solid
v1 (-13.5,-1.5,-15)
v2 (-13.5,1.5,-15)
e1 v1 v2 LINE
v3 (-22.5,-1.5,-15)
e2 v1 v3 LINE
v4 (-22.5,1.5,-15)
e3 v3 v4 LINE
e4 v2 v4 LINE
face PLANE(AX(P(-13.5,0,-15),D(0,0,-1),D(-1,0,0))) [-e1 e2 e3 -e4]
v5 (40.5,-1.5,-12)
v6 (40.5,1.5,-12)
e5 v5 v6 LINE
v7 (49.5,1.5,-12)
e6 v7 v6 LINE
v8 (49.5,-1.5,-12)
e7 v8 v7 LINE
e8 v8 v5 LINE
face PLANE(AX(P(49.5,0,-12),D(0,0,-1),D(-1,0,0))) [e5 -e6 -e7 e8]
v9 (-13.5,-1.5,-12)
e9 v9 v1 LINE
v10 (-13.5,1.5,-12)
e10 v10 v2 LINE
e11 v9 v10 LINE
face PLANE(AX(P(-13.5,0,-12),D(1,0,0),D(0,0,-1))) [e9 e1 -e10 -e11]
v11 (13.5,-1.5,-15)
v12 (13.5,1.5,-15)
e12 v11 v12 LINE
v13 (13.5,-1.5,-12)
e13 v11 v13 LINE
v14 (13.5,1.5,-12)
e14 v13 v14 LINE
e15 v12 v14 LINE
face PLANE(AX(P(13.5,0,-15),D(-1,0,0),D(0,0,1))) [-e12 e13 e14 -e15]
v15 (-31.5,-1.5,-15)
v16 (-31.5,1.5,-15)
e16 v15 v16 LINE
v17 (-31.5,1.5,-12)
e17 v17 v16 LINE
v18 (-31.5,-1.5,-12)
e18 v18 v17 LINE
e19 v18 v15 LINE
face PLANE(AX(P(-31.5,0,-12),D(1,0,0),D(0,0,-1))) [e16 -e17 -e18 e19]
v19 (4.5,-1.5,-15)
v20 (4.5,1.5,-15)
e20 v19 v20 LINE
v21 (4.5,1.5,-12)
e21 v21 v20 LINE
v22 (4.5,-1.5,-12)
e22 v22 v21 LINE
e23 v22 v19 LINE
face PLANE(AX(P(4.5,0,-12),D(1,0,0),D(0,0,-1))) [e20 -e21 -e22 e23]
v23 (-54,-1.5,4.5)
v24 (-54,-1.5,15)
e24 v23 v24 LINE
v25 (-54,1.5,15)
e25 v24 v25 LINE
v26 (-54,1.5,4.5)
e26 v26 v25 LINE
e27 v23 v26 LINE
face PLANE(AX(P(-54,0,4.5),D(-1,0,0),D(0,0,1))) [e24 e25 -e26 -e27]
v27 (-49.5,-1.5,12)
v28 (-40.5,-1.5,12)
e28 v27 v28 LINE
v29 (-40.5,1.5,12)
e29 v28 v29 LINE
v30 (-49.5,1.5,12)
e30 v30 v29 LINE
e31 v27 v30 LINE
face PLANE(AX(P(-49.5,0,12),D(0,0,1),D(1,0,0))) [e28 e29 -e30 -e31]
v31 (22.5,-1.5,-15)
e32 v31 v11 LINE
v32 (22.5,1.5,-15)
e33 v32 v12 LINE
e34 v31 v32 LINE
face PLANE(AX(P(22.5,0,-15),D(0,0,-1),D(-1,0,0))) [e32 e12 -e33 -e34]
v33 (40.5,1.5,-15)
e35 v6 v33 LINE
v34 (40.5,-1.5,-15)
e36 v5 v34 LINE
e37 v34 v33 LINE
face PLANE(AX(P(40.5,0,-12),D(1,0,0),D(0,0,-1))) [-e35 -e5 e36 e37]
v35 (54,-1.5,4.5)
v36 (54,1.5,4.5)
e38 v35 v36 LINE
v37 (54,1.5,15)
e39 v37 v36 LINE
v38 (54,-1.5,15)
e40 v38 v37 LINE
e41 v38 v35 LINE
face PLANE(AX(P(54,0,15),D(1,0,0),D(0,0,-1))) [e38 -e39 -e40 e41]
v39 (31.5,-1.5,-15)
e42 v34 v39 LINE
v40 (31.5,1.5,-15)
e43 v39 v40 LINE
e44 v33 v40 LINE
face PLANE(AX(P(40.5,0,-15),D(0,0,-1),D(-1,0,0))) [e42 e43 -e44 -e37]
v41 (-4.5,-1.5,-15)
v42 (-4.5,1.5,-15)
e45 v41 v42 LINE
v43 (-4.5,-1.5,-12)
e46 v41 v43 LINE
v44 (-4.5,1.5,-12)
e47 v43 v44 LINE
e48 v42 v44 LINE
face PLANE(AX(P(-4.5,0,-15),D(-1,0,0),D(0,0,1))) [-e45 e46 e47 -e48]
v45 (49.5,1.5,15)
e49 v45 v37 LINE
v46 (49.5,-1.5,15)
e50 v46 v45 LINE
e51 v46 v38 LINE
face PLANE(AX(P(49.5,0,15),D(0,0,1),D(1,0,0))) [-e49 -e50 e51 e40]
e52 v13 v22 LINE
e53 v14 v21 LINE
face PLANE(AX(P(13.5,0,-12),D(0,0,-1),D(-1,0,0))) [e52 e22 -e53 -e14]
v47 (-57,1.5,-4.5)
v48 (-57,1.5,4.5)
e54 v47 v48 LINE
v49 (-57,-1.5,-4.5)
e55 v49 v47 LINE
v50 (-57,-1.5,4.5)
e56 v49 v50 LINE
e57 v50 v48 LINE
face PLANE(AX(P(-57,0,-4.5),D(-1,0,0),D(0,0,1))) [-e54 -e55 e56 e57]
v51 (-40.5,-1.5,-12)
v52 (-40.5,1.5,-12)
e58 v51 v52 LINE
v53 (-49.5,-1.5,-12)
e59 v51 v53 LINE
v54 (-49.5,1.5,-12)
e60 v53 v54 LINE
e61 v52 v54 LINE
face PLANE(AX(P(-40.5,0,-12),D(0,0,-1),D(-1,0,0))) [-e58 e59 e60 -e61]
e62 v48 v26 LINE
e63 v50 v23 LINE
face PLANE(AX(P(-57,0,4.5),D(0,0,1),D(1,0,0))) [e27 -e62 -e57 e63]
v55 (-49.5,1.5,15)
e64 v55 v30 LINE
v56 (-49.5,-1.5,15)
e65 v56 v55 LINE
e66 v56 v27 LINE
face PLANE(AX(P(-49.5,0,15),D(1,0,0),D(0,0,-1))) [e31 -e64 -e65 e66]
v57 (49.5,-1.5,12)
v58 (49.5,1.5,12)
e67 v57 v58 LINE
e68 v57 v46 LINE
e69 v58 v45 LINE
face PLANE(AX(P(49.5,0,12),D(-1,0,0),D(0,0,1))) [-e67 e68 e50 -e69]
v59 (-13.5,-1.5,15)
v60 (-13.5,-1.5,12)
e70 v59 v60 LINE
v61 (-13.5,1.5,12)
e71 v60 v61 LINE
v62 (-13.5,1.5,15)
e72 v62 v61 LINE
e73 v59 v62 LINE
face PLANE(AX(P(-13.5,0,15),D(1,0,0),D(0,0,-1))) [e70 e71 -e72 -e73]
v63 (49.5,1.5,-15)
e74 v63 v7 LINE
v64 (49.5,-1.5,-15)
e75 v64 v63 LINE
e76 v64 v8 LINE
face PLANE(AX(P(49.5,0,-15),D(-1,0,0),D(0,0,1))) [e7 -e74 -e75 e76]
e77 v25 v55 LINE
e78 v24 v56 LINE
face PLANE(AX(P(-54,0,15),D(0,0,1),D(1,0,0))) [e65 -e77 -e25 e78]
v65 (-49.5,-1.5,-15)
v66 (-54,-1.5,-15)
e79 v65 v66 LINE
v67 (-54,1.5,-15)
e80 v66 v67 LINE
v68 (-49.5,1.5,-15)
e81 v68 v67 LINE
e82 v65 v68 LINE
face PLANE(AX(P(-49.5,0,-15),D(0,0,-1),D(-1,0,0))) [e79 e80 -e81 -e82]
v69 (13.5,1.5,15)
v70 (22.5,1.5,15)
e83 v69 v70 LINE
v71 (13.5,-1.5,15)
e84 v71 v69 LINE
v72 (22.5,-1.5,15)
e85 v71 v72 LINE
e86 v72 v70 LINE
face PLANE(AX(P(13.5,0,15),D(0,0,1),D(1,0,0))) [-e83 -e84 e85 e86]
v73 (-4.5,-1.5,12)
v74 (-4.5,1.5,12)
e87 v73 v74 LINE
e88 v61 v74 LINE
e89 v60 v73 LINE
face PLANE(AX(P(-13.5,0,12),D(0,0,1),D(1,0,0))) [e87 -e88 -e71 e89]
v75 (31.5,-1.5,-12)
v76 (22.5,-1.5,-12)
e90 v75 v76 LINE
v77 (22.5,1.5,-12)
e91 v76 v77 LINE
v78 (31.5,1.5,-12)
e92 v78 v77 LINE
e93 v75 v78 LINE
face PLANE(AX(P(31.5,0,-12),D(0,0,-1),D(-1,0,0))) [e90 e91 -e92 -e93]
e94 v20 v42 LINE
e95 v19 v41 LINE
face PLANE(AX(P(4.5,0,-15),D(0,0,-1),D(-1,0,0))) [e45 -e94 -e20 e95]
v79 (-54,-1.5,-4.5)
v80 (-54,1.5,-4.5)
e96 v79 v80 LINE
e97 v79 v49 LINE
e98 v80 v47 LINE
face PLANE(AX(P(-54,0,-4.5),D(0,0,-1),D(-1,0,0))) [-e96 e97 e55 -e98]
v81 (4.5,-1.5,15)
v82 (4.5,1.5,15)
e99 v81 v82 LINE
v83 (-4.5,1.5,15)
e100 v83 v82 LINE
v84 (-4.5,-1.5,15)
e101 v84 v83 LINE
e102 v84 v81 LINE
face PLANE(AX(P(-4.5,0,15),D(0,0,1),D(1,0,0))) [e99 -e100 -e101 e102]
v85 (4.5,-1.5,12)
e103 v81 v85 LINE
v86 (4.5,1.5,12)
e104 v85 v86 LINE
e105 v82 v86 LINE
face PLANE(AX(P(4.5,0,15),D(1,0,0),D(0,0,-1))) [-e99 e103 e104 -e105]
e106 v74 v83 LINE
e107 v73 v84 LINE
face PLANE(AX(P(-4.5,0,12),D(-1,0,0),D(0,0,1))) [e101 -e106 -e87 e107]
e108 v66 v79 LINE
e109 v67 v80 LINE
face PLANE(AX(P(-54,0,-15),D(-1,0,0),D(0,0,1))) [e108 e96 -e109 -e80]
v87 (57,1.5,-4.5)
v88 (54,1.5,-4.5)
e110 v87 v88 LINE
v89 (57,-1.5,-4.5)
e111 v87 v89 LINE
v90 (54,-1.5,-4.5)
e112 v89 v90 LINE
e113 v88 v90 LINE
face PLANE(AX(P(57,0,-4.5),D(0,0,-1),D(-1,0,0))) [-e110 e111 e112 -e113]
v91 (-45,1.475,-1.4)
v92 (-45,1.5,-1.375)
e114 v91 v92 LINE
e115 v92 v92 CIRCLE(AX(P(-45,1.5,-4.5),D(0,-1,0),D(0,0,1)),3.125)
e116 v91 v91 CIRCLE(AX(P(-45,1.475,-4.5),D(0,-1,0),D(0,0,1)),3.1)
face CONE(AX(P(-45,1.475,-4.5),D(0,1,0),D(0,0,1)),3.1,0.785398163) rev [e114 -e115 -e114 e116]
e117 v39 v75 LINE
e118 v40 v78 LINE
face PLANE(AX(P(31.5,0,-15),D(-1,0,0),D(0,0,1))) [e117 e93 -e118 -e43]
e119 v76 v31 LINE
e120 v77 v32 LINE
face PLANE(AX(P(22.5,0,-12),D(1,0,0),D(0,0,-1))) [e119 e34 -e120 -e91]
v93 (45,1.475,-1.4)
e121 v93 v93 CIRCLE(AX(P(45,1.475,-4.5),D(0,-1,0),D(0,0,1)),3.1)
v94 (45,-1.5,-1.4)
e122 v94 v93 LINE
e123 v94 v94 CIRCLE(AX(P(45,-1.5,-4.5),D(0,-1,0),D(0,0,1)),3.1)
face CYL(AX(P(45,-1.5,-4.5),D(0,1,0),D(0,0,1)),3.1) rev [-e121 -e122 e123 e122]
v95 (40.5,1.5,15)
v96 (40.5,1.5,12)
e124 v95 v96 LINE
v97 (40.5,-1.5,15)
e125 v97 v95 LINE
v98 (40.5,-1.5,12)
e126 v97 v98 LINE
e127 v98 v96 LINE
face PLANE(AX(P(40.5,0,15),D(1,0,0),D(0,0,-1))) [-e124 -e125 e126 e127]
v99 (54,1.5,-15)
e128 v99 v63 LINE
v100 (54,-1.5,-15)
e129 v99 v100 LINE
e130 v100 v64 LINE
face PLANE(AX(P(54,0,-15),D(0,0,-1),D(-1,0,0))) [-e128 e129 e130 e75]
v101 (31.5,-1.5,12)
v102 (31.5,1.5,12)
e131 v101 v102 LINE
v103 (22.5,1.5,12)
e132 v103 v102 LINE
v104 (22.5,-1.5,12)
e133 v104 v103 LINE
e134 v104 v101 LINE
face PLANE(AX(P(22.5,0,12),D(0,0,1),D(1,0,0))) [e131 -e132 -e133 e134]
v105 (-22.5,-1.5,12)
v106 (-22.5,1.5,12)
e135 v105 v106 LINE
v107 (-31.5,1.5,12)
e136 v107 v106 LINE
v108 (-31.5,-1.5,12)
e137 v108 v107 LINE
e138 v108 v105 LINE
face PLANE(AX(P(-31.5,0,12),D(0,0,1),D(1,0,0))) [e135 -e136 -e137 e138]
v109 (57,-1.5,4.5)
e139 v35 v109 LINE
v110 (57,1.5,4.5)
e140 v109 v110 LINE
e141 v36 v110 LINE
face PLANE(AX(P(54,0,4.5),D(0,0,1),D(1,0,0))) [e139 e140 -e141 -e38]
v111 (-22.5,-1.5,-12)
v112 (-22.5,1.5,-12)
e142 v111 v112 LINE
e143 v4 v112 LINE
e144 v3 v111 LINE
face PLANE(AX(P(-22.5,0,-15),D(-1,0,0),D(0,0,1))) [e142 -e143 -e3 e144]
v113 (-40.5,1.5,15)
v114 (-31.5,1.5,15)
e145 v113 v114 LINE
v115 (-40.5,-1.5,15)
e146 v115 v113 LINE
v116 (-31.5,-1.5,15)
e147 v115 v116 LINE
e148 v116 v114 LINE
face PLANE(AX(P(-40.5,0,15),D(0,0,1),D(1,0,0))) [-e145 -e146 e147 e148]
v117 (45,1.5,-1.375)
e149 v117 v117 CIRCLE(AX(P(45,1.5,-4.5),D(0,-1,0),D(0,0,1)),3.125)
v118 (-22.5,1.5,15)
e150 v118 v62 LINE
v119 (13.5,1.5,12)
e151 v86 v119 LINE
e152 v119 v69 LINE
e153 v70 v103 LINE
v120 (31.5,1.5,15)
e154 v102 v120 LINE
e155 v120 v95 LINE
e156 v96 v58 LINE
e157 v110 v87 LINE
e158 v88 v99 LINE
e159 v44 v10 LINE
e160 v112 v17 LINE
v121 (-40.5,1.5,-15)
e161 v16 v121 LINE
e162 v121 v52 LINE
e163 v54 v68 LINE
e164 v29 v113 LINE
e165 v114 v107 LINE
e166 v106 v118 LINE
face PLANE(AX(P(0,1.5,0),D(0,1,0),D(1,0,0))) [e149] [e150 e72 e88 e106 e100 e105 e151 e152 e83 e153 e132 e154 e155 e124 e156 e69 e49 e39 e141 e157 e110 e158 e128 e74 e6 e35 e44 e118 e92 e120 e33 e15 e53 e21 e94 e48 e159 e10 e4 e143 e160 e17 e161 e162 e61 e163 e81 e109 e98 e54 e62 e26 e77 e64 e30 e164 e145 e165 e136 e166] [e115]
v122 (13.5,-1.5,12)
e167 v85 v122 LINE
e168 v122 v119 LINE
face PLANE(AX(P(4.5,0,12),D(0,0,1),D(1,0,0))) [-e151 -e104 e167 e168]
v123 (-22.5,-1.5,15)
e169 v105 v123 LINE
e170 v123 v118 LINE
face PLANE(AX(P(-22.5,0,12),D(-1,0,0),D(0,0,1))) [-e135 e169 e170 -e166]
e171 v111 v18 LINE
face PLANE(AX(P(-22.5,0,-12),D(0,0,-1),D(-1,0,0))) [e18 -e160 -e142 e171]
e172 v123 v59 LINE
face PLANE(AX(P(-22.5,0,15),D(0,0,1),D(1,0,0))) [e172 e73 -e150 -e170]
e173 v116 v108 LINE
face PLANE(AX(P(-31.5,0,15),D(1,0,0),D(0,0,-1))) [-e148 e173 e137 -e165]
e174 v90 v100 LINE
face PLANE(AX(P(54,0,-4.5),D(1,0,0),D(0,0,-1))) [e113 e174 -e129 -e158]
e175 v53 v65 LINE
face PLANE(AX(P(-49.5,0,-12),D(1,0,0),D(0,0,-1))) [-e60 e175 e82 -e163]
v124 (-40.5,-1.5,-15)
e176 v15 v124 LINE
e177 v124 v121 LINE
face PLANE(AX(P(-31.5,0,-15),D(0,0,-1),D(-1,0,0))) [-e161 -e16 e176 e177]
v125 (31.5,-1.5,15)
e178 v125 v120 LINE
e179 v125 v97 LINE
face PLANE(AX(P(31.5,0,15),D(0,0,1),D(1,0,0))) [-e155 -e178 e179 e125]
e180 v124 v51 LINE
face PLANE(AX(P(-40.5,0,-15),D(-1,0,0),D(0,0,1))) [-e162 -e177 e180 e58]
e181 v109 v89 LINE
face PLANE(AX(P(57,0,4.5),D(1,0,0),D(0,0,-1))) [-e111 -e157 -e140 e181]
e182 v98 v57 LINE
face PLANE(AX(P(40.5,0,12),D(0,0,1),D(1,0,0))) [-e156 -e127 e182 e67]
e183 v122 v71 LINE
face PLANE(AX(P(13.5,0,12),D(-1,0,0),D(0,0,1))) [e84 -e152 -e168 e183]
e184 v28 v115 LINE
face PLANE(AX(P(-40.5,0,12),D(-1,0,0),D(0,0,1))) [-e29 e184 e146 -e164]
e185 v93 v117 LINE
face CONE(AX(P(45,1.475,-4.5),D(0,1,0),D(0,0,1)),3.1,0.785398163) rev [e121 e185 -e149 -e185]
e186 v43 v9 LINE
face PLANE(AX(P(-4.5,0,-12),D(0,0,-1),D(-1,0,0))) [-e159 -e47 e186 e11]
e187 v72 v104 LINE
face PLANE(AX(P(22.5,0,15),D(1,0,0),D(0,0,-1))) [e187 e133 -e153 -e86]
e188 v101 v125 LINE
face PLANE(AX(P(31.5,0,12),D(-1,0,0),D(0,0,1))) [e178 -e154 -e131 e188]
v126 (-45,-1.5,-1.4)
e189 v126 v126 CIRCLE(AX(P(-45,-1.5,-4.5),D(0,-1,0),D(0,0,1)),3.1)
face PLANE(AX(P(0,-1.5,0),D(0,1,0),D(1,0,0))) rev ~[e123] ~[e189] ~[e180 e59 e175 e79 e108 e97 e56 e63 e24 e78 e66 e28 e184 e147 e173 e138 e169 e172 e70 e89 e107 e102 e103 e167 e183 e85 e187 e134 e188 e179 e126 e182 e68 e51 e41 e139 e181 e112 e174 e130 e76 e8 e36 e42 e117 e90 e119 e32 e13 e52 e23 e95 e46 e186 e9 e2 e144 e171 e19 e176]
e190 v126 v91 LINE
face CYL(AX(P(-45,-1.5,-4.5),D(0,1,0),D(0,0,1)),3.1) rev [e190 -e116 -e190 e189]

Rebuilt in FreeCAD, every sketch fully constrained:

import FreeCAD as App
import Part
import Sketcher

V = App.Vector
Q = App.Units.Quantity


def add_polygon(sketch, points):
    """Adds a closed chain of lines whose ends are joined by coincident constraints."""
    first, n = sketch.GeometryCount, len(points)
    for a, b in zip(points, points[1:] + points[:1]):
        sketch.addGeometry(Part.LineSegment(App.Vector(*a, 0), App.Vector(*b, 0)), False)
    for i in range(n):
        sketch.addConstraint(Sketcher.Constraint("Coincident", first + i, 2, first + (i + 1) % n, 1))

doc = App.newDocument("Part")
body = doc.addObject("PartDesign::Body", "Body")

# Sketch on XZ plane
sketch1 = body.newObject("Sketcher::SketchObject", "Sketch")
sketch1.AttachmentSupport = (doc.getObject("XZ_Plane"), [""])
sketch1.MapMode = "FlatFace"
add_polygon(sketch1, [(54, -15), (49.5, -15), (49.5, -12), (40.5, -12), (40.5, -15), (31.5, -15), (31.5, -12), (22.5, -12), (22.5, -15), (13.5, -15), (13.5, -12), (4.5, -12), (4.5, -15), (-4.5, -15), (-4.5, -12), (-13.5, -12), (-13.5, -15), (-22.5, -15), (-22.5, -12), (-31.5, -12), (-31.5, -15), (-40.5, -15), (-40.5, -12), (-49.5, -12), (-49.5, -15), (-54, -15), (-54, -4.5), (-57, -4.5), (-57, 4.5), (-54, 4.5), (-54, 15), (-49.5, 15), (-49.5, 12), (-40.5, 12), (-40.5, 15), (-31.5, 15), (-31.5, 12), (-22.5, 12), (-22.5, 15), (-13.5, 15), (-13.5, 12), (-4.5, 12), (-4.5, 15), (4.5, 15), (4.5, 12), (13.5, 12), (13.5, 15), (22.5, 15), (22.5, 12), (31.5, 12), (31.5, 15), (40.5, 15), (40.5, 12), (49.5, 12), (49.5, 15), (54, 15), (54, 4.5), (57, 4.5), (57, -4.5), (54, -4.5)])  # lines 0-59
sketch1.addConstraint([
    Sketcher.Constraint("Horizontal", 0),
    Sketcher.Constraint("Vertical", 1),
    Sketcher.Constraint("Horizontal", 2),
    Sketcher.Constraint("Vertical", 3),
    Sketcher.Constraint("Horizontal", 4),
    Sketcher.Constraint("Vertical", 5),
    Sketcher.Constraint("Horizontal", 6),
    Sketcher.Constraint("Vertical", 7),
    Sketcher.Constraint("Horizontal", 8),
    Sketcher.Constraint("Vertical", 9),
    Sketcher.Constraint("Horizontal", 10),
    Sketcher.Constraint("Vertical", 11),
    Sketcher.Constraint("Horizontal", 12),
    Sketcher.Constraint("Vertical", 13),
    Sketcher.Constraint("Horizontal", 14),
    Sketcher.Constraint("Vertical", 15),
    Sketcher.Constraint("Horizontal", 16),
    Sketcher.Constraint("Vertical", 17),
    Sketcher.Constraint("Horizontal", 18),
    Sketcher.Constraint("Vertical", 19),
    Sketcher.Constraint("Horizontal", 20),
    Sketcher.Constraint("Vertical", 21),
    Sketcher.Constraint("Horizontal", 22),
    Sketcher.Constraint("Vertical", 23),
    Sketcher.Constraint("Horizontal", 24),
    Sketcher.Constraint("Vertical", 25),
    Sketcher.Constraint("Horizontal", 26),
    Sketcher.Constraint("Vertical", 27),
    Sketcher.Constraint("Horizontal", 28),
    Sketcher.Constraint("Vertical", 29),
    Sketcher.Constraint("Horizontal", 30),
    Sketcher.Constraint("Vertical", 31),
    Sketcher.Constraint("Horizontal", 32),
    Sketcher.Constraint("Vertical", 33),
    Sketcher.Constraint("Horizontal", 34),
    Sketcher.Constraint("Vertical", 35),
    Sketcher.Constraint("Horizontal", 36),
    Sketcher.Constraint("Vertical", 37),
    Sketcher.Constraint("Horizontal", 38),
    Sketcher.Constraint("Vertical", 39),
    Sketcher.Constraint("Horizontal", 40),
    Sketcher.Constraint("Vertical", 41),
    Sketcher.Constraint("Horizontal", 42),
    Sketcher.Constraint("Vertical", 43),
    Sketcher.Constraint("Horizontal", 44),
    Sketcher.Constraint("Vertical", 45),
    Sketcher.Constraint("Horizontal", 46),
    Sketcher.Constraint("Vertical", 47),
    Sketcher.Constraint("Horizontal", 48),
    Sketcher.Constraint("Vertical", 49),
    Sketcher.Constraint("Horizontal", 50),
    Sketcher.Constraint("Vertical", 51),
    Sketcher.Constraint("Horizontal", 52),
    Sketcher.Constraint("Vertical", 53),
    Sketcher.Constraint("Horizontal", 54),
    Sketcher.Constraint("Vertical", 55),
    Sketcher.Constraint("Horizontal", 56),
    Sketcher.Constraint("Vertical", 57),
    Sketcher.Constraint("Horizontal", 58),
    Sketcher.Constraint("Vertical", 59),
    Sketcher.Constraint("Symmetric", 0, 2, 30, 2, -1, 1),
    Sketcher.Constraint("Symmetric", 2, 2, 32, 2, -1, 1),
    Sketcher.Constraint("Symmetric", 4, 2, 34, 2, -1, 1),
    Sketcher.Constraint("Symmetric", 6, 2, 36, 2, -1, 1),
    Sketcher.Constraint("Symmetric", 8, 2, 38, 2, -1, 1),
    Sketcher.Constraint("Symmetric", 10, 2, 40, 2, -1, 1),
    Sketcher.Constraint("Symmetric", 12, 2, 42, 2, -1, 1),
    Sketcher.Constraint("Symmetric", 14, 2, 44, 2, -1, 1),
    Sketcher.Constraint("Symmetric", 16, 2, 46, 2, -1, 1),
    Sketcher.Constraint("Symmetric", 18, 2, 48, 2, -1, 1),
    Sketcher.Constraint("Symmetric", 20, 2, 50, 2, -1, 1),
    Sketcher.Constraint("Symmetric", 22, 2, 52, 2, -1, 1),
    Sketcher.Constraint("Symmetric", 24, 2, 54, 2, -1, 1),
    Sketcher.Constraint("Symmetric", 26, 2, 56, 2, -1, 1),
    Sketcher.Constraint("Symmetric", 28, 2, 58, 2, -1, 1),
    Sketcher.Constraint("Symmetric", 10, 2, 13, 2, -2),
    Sketcher.Constraint("Symmetric", 8, 2, 15, 2, -2),
    Sketcher.Constraint("Symmetric", 6, 2, 17, 2, -2),
    Sketcher.Constraint("Symmetric", 4, 2, 19, 2, -2),
    Sketcher.Constraint("Symmetric", 2, 2, 21, 2, -2),
    Sketcher.Constraint("Symmetric", 0, 2, 23, 2, -2),
    Sketcher.Constraint("Symmetric", 28, 2, 55, 2, -2),
    Sketcher.Constraint("Horizontal", 0, 2, 3, 2),
    Sketcher.Constraint("Horizontal", 2, 2, 5, 2),
    Sketcher.Constraint("Horizontal", 4, 2, 7, 2),
    Sketcher.Constraint("Horizontal", 6, 2, 9, 2),
    Sketcher.Constraint("Horizontal", 8, 2, 11, 2),
    Sketcher.Constraint("Equal", 2, 4),
    Sketcher.Constraint("Equal", 4, 6),
    Sketcher.Constraint("Equal", 6, 8),
    Sketcher.Constraint("Equal", 8, 10),
    Sketcher.Constraint("Equal", 10, 12),
    Sketcher.Constraint("Equal", 58, 1),
    Sketcher.Constraint("Equal", 52, 27),
    Sketcher.Constraint("DistanceX", 2, 2, 2, 1, Q("9 mm")),
    Sketcher.Constraint("DistanceX", 26, 2, 26, 1, Q("3 mm")),
    Sketcher.Constraint("DistanceX", 0, 2, 0, 1, Q("4.5 mm")),
    Sketcher.Constraint("DistanceY", 25, 1, 25, 2, Q("10.5 mm")),
])
pad1 = body.newObject("PartDesign::Pad", "Pad")
pad1.Profile = sketch1
pad1.Length = 3
pad1.Midplane = True

# Sketch on YZ plane
sketch2 = body.newObject("Sketcher::SketchObject", "Sketch001")
sketch2.AttachmentSupport = (doc.getObject("YZ_Plane"), [""])
sketch2.MapMode = "FlatFace"
sketch2.AttachmentOffset = App.Placement(V(0, 0, -45), App.Rotation())
add_polygon(sketch2, [(-1.5, -4.5), (1.5, -4.5), (1.5, -1.375), (1.475, -1.4), (-1.5, -1.4)])  # lines 0-4
sketch2.addGeometry(Part.LineSegment(V(1.5, -4.5, 0), V(-1.5, -4.5, 0)), True)  # axis
sketch2.addConstraint([
    Sketcher.Constraint("Horizontal", 0),
    Sketcher.Constraint("Vertical", 1),
    Sketcher.Constraint("Horizontal", 3),
    Sketcher.Constraint("Vertical", 4),
    Sketcher.Constraint("Horizontal", 5),
    Sketcher.Constraint("Coincident", 5, 1, 0, 2),
    Sketcher.Constraint("Vertical", 3, 2, 5, 2),
    Sketcher.Constraint("DistanceX", 0, 1, 0, 2, Q("3 mm")),
    Sketcher.Constraint("Angle", 2, Q("-135 deg")),
    Sketcher.Constraint("DistanceY", 4, 2, 4, 1, Q("3.1 mm")),
    Sketcher.Constraint("DistanceX", -1, 1, 0, 2, Q("1.5 mm")),
    Sketcher.Constraint("DistanceY", 0, 2, -1, 1, Q("4.5 mm")),
    Sketcher.Constraint("DistanceX", 3, 2, 3, 1, Q("2.975 mm")),
])
groove = body.newObject("PartDesign::Groove", "Groove")
groove.Profile = sketch2
groove.ReferenceAxis = (sketch2, ["Axis0"])
groove.Angle = 360
doc.recompute()

linearpattern = body.newObject("PartDesign::LinearPattern", "LinearPattern")
linearpattern.Originals = [groove]
linearpattern.Direction = (doc.getObject("X_Axis"), [""])
linearpattern.Mode = "offset"
linearpattern.Offset = 90
linearpattern.Occurrences = 2
body.Tip = linearpattern

doc.recompute()
